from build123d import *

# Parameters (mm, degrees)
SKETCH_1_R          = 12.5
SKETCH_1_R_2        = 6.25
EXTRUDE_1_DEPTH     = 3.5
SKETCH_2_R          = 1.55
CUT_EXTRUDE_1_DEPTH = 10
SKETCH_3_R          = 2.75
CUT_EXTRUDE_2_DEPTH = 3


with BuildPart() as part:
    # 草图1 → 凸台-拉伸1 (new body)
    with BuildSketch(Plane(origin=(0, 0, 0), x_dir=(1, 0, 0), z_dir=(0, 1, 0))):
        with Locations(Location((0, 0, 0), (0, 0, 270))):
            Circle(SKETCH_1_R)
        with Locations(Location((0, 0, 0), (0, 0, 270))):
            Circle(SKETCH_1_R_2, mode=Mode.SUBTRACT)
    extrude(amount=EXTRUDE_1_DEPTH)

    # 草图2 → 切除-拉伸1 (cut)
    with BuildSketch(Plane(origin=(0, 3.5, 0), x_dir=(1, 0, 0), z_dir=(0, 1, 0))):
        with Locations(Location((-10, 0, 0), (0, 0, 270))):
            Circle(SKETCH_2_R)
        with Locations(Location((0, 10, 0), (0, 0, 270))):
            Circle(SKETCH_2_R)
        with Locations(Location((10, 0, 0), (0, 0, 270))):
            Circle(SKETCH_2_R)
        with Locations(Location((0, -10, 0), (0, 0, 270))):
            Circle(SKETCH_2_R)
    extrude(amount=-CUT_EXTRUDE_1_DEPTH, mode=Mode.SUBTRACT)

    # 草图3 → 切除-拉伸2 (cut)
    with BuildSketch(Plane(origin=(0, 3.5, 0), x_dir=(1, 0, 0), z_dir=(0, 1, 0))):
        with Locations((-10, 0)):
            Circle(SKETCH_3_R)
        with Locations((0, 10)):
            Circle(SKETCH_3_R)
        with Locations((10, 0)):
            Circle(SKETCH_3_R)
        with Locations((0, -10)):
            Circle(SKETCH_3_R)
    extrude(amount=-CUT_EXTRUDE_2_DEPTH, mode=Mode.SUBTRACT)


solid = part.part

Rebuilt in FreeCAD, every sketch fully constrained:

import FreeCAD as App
import Part
import Sketcher

doc = App.newDocument("Part")
body = doc.addObject("PartDesign::Body", "Body")

# Sketch on XZ plane
sketch1 = body.newObject("Sketcher::SketchObject", "Sketch")
sketch1.AttachmentSupport = (doc.getObject("XZ_Plane"), [""])
sketch1.MapMode = "FlatFace"
sketch1.addGeometry([
    Part.Circle(App.Vector(0, 0, 0), App.Vector(0, 0, 1), 12),
    Part.Circle(App.Vector(0, 0, 0), App.Vector(0, 0, 1), 6),
], False)
sketch1.addConstraint([
    Sketcher.Constraint("Coincident", 0, 3, -1, 1),
    Sketcher.Constraint("Coincident", 1, 3, -1, 1),
    Sketcher.Constraint("Diameter", 0, 25.0),
    Sketcher.Constraint("Diameter", 1, 12.5),
])
pad1 = body.newObject("PartDesign::Pad", "Pad")
pad1.Profile = sketch1
pad1.Length = 3.5
pad1.Reversed = True

# Sketch on XZ plane
sketch2 = body.newObject("Sketcher::SketchObject", "Sketch001")
sketch2.AttachmentSupport = (doc.getObject("XZ_Plane"), [""])
sketch2.MapMode = "FlatFace"
sketch2.AttachmentOffset = App.Placement(App.Vector(0, 0, -3.5), App.Rotation())
sketch2.addGeometry([
    Part.Circle(App.Vector(-10, 0, 0), App.Vector(0, 0, 1), 1.6),
    Part.Circle(App.Vector(0, -10, 0), App.Vector(0, 0, 1), 1.6),
    Part.Circle(App.Vector(10, 0, 0), App.Vector(0, 0, 1), 1.6),
    Part.Circle(App.Vector(0, 10, 0), App.Vector(0, 0, 1), 1.6),
], False)
sketch2.addConstraint([
    Sketcher.Constraint("Equal", 0, 1),
    Sketcher.Constraint("Equal", 1, 2),
    Sketcher.Constraint("Equal", 2, 3),
    Sketcher.Constraint("Symmetric", 0, 3, 2, 3, -1, 1),
    Sketcher.Constraint("Symmetric", 1, 3, 3, 3, -1, 1),
    Sketcher.Constraint("PointOnObject", 0, 3, -1),
    Sketcher.Constraint("PointOnObject", 1, 3, -2),
    Sketcher.Constraint("Diameter", 0, 3.1),
    Sketcher.Constraint("DistanceX", 0, 3, -1, 1, 10.0),
    Sketcher.Constraint("DistanceY", 1, 3, -1, 1, 10.0),
])
pocket1 = body.newObject("PartDesign::Pocket", "Pocket")
pocket1.Profile = sketch2
pocket1.Length = 10
pocket1.Reversed = True

# Sketch on XZ plane
sketch3 = body.newObject("Sketcher::SketchObject", "Sketch002")
sketch3.AttachmentSupport = (doc.getObject("XZ_Plane"), [""])
sketch3.MapMode = "FlatFace"
sketch3.AttachmentOffset = App.Placement(App.Vector(0, 0, -3.5), App.Rotation())
sketch3.addGeometry([
    Part.Circle(App.Vector(-10, 0, 0), App.Vector(0, 0, 1), 2.8),
    Part.Circle(App.Vector(0, -10, 0), App.Vector(0, 0, 1), 2.8),
    Part.Circle(App.Vector(10, 0, 0), App.Vector(0, 0, 1), 2.8),
    Part.Circle(App.Vector(0, 10, 0), App.Vector(0, 0, 1), 2.8),
], False)
sketch3.addConstraint([
    Sketcher.Constraint("Equal", 0, 1),
    Sketcher.Constraint("Equal", 1, 2),
    Sketcher.Constraint("Equal", 2, 3),
    Sketcher.Constraint("Symmetric", 0, 3, 2, 3, -1, 1),
    Sketcher.Constraint("Symmetric", 1, 3, 3, 3, -1, 1),
    Sketcher.Constraint("PointOnObject", 0, 3, -1),
    Sketcher.Constraint("PointOnObject", 1, 3, -2),
    Sketcher.Constraint("Diameter", 0, 5.5),
    Sketcher.Constraint("DistanceX", 0, 3, -1, 1, 10.0),
    Sketcher.Constraint("DistanceY", 1, 3, -1, 1, 10.0),
])
pocket2 = body.newObject("PartDesign::Pocket", "Pocket001")
pocket2.Profile = sketch3
pocket2.Length = 3
pocket2.Reversed = True

doc.recompute()
